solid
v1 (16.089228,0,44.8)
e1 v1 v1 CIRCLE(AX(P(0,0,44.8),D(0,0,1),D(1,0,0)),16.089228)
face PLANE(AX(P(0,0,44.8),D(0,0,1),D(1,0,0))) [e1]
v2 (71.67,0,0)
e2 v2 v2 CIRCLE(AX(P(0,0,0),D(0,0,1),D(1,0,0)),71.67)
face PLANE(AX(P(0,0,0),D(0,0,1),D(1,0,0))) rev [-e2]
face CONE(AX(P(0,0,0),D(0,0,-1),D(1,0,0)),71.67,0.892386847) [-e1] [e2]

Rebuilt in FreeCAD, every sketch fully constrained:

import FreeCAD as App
import Part
import Sketcher
Q = App.Units.Quantity

doc = App.newDocument("Part")
body = doc.addObject("PartDesign::Body", "Body")

sketch1 = body.newObject("Sketcher::SketchObject", "Sketch")
sketch1.AttachmentSupport = (doc.getObject("XY_Plane"), [""])
sketch1.MapMode = "FlatFace"
sketch1.addGeometry(Part.Circle(App.Vector(0, 0, 0), App.Vector(0, 0, 1), 71.67), False)
sketch1.addConstraint([
    Sketcher.Constraint("Coincident", 0, 3, -1, 1),
    Sketcher.Constraint("Diameter", 0, Q("143.34 mm")),
])
pad1 = body.newObject("PartDesign::Pad", "Pad")
pad1.Profile = sketch1
pad1.Length = 44.8
pad1.TaperAngle = -51.13

doc.recompute()
